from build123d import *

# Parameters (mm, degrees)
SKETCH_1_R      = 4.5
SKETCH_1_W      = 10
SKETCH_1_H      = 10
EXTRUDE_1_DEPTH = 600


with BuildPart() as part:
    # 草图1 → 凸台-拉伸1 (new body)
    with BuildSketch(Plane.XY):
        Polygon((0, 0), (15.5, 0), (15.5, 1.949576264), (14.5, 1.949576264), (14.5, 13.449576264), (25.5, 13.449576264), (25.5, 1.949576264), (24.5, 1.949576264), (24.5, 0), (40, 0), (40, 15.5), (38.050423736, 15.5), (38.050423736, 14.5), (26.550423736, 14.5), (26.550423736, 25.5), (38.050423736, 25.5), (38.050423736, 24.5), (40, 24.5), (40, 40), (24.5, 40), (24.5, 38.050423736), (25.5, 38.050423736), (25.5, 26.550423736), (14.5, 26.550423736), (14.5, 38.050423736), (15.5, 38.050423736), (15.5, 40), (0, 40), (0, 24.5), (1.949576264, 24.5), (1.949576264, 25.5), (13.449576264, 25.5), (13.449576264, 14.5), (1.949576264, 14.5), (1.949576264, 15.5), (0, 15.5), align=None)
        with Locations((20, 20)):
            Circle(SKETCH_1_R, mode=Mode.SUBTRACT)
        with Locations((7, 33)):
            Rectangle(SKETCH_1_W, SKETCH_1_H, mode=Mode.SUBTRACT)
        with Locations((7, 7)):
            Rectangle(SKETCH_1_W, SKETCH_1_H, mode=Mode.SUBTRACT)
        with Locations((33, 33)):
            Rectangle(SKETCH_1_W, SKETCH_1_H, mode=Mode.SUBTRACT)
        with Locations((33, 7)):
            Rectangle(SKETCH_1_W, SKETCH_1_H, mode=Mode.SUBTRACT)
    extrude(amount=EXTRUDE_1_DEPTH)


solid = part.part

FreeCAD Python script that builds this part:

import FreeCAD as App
import Part
import Sketcher

V = App.Vector
Q = App.Units.Quantity

doc = App.newDocument("Part")
body = doc.addObject("PartDesign::Body", "Body")

# Sketch on XY plane
sketch1 = body.newObject("Sketcher::SketchObject", "Sketch")
sketch1.AttachmentSupport = (doc.getObject("XY_Plane"), [""])
sketch1.MapMode = "FlatFace"
sketch1.addGeometry([
    Part.LineSegment(V(0, 0, 0), V(15.5, 0, 0)),  # 0
    Part.LineSegment(V(15.5, 0, 0), V(15.5, 1.9, 0)),  # 1
    Part.LineSegment(V(15.5, 1.9, 0), V(14.5, 1.9, 0)),  # 2
    Part.LineSegment(V(14.5, 1.9, 0), V(14.5, 13.4, 0)),  # 3
    Part.LineSegment(V(14.5, 13.4, 0), V(25.5, 13.4, 0)),  # 4
    Part.LineSegment(V(25.5, 13.4, 0), V(25.5, 1.9, 0)),  # 5
    Part.LineSegment(V(25.5, 1.9, 0), V(24.5, 1.9, 0)),  # 6
    Part.LineSegment(V(24.5, 1.9, 0), V(24.5, 0, 0)),  # 7
    Part.LineSegment(V(24.5, 0, 0), V(40, 0, 0)),  # 8
    Part.LineSegment(V(40, 0, 0), V(40, 15.5, 0)),  # 9
    Part.LineSegment(V(40, 15.5, 0), V(38.1, 15.5, 0)),  # 10
    Part.LineSegment(V(38.1, 15.5, 0), V(38.1, 14.5, 0)),  # 11
    Part.LineSegment(V(38.1, 14.5, 0), V(26.6, 14.5, 0)),  # 12
    Part.LineSegment(V(26.6, 14.5, 0), V(26.6, 25.5, 0)),  # 13
    Part.LineSegment(V(26.6, 25.5, 0), V(38.1, 25.5, 0)),  # 14
    Part.LineSegment(V(38.1, 25.5, 0), V(38.1, 24.5, 0)),  # 15
    Part.LineSegment(V(38.1, 24.5, 0), V(40, 24.5, 0)),  # 16
    Part.LineSegment(V(40, 24.5, 0), V(40, 40, 0)),  # 17
    Part.LineSegment(V(40, 40, 0), V(24.5, 40, 0)),  # 18
    Part.LineSegment(V(24.5, 40, 0), V(24.5, 38.1, 0)),  # 19
    Part.LineSegment(V(24.5, 38.1, 0), V(25.5, 38.1, 0)),  # 20
    Part.LineSegment(V(25.5, 38.1, 0), V(25.5, 26.6, 0)),  # 21
    Part.LineSegment(V(25.5, 26.6, 0), V(14.5, 26.6, 0)),  # 22
    Part.LineSegment(V(14.5, 26.6, 0), V(14.5, 38.1, 0)),  # 23
    Part.LineSegment(V(14.5, 38.1, 0), V(15.5, 38.1, 0)),  # 24
    Part.LineSegment(V(15.5, 38.1, 0), V(15.5, 40, 0)),  # 25
    Part.LineSegment(V(15.5, 40, 0), V(0, 40, 0)),  # 26
    Part.LineSegment(V(0, 40, 0), V(0, 24.5, 0)),  # 27
    Part.LineSegment(V(0, 24.5, 0), V(1.9, 24.5, 0)),  # 28
    Part.LineSegment(V(1.9, 24.5, 0), V(1.9, 25.5, 0)),  # 29
    Part.LineSegment(V(1.9, 25.5, 0), V(13.4, 25.5, 0)),  # 30
    Part.LineSegment(V(13.4, 25.5, 0), V(13.4, 14.5, 0)),  # 31
    Part.LineSegment(V(13.4, 14.5, 0), V(1.9, 14.5, 0)),  # 32
    Part.LineSegment(V(1.9, 14.5, 0), V(1.9, 15.5, 0)),  # 33
    Part.LineSegment(V(1.9, 15.5, 0), V(0, 15.5, 0)),  # 34
    Part.LineSegment(V(0, 15.5, 0), V(0, 0, 0)),  # 35
    Part.LineSegment(V(12, 2, 0), V(2, 2, 0)),  # 36
    Part.LineSegment(V(2, 2, 0), V(2, 12, 0)),  # 37
    Part.LineSegment(V(2, 12, 0), V(12, 12, 0)),  # 38
    Part.LineSegment(V(12, 12, 0), V(12, 2, 0)),  # 39
    Part.LineSegment(V(38, 2, 0), V(28, 2, 0)),  # 40
    Part.LineSegment(V(28, 2, 0), V(28, 12, 0)),  # 41
    Part.LineSegment(V(28, 12, 0), V(38, 12, 0)),  # 42
    Part.LineSegment(V(38, 12, 0), V(38, 2, 0)),  # 43
    Part.LineSegment(V(12, 28, 0), V(2, 28, 0)),  # 44
    Part.LineSegment(V(2, 28, 0), V(2, 38, 0)),  # 45
    Part.LineSegment(V(2, 38, 0), V(12, 38, 0)),  # 46
    Part.LineSegment(V(12, 38, 0), V(12, 28, 0)),  # 47
    Part.Circle(V(20, 20, 0), V(0, 0, 1), 4.5),  # 48
    Part.LineSegment(V(38, 28, 0), V(28, 28, 0)),  # 49
    Part.LineSegment(V(28, 28, 0), V(28, 38, 0)),  # 50
    Part.LineSegment(V(28, 38, 0), V(38, 38, 0)),  # 51
    Part.LineSegment(V(38, 38, 0), V(38, 28, 0)),  # 52
], False)
sketch1.addConstraint([
    Sketcher.Constraint("Coincident", 0, 2, 1, 1),
    Sketcher.Constraint("Coincident", 1, 2, 2, 1),
    Sketcher.Constraint("Coincident", 2, 2, 3, 1),
    Sketcher.Constraint("Coincident", 3, 2, 4, 1),
    Sketcher.Constraint("Coincident", 4, 2, 5, 1),
    Sketcher.Constraint("Coincident", 5, 2, 6, 1),
    Sketcher.Constraint("Coincident", 6, 2, 7, 1),
    Sketcher.Constraint("Coincident", 7, 2, 8, 1),
    Sketcher.Constraint("Coincident", 8, 2, 9, 1),
    Sketcher.Constraint("Coincident", 9, 2, 10, 1),
    Sketcher.Constraint("Coincident", 10, 2, 11, 1),
    Sketcher.Constraint("Coincident", 11, 2, 12, 1),
    Sketcher.Constraint("Coincident", 12, 2, 13, 1),
    Sketcher.Constraint("Coincident", 13, 2, 14, 1),
    Sketcher.Constraint("Coincident", 14, 2, 15, 1),
    Sketcher.Constraint("Coincident", 15, 2, 16, 1),
    Sketcher.Constraint("Coincident", 16, 2, 17, 1),
    Sketcher.Constraint("Coincident", 17, 2, 18, 1),
    Sketcher.Constraint("Coincident", 18, 2, 19, 1),
    Sketcher.Constraint("Coincident", 19, 2, 20, 1),
    Sketcher.Constraint("Coincident", 20, 2, 21, 1),
    Sketcher.Constraint("Coincident", 21, 2, 22, 1),
    Sketcher.Constraint("Coincident", 22, 2, 23, 1),
    Sketcher.Constraint("Coincident", 23, 2, 24, 1),
    Sketcher.Constraint("Coincident", 24, 2, 25, 1),
    Sketcher.Constraint("Coincident", 25, 2, 26, 1),
    Sketcher.Constraint("Coincident", 26, 2, 27, 1),
    Sketcher.Constraint("Coincident", 27, 2, 28, 1),
    Sketcher.Constraint("Coincident", 28, 2, 29, 1),
    Sketcher.Constraint("Coincident", 29, 2, 30, 1),
    Sketcher.Constraint("Coincident", 30, 2, 31, 1),
    Sketcher.Constraint("Coincident", 31, 2, 32, 1),
    Sketcher.Constraint("Coincident", 32, 2, 33, 1),
    Sketcher.Constraint("Coincident", 33, 2, 34, 1),
    Sketcher.Constraint("Coincident", 34, 2, 35, 1),
    Sketcher.Constraint("Coincident", 35, 2, 0, 1),
    Sketcher.Constraint("Coincident", 36, 2, 37, 1),
    Sketcher.Constraint("Coincident", 37, 2, 38, 1),
    Sketcher.Constraint("Coincident", 38, 2, 39, 1),
    Sketcher.Constraint("Coincident", 39, 2, 36, 1),
    Sketcher.Constraint("Coincident", 40, 2, 41, 1),
    Sketcher.Constraint("Coincident", 41, 2, 42, 1),
    Sketcher.Constraint("Coincident", 42, 2, 43, 1),
    Sketcher.Constraint("Coincident", 43, 2, 40, 1),
    Sketcher.Constraint("Coincident", 44, 2, 45, 1),
    Sketcher.Constraint("Coincident", 45, 2, 46, 1),
    Sketcher.Constraint("Coincident", 46, 2, 47, 1),
    Sketcher.Constraint("Coincident", 47, 2, 44, 1),
    Sketcher.Constraint("Coincident", 49, 2, 50, 1),
    Sketcher.Constraint("Coincident", 50, 2, 51, 1),
    Sketcher.Constraint("Coincident", 51, 2, 52, 1),
    Sketcher.Constraint("Coincident", 52, 2, 49, 1),
    Sketcher.Constraint("Horizontal", 0),
    Sketcher.Constraint("Vertical", 1),
    Sketcher.Constraint("Horizontal", 2),
    Sketcher.Constraint("Vertical", 3),
    Sketcher.Constraint("Horizontal", 4),
    Sketcher.Constraint("Vertical", 5),
    Sketcher.Constraint("Horizontal", 6),
    Sketcher.Constraint("Vertical", 7),
    Sketcher.Constraint("Horizontal", 8),
    Sketcher.Constraint("Vertical", 9),
    Sketcher.Constraint("Horizontal", 10),
    Sketcher.Constraint("Vertical", 11),
    Sketcher.Constraint("Horizontal", 12),
    Sketcher.Constraint("Vertical", 13),
    Sketcher.Constraint("Horizontal", 14),
    Sketcher.Constraint("Vertical", 15),
    Sketcher.Constraint("Horizontal", 16),
    Sketcher.Constraint("Vertical", 17),
    Sketcher.Constraint("Horizontal", 18),
    Sketcher.Constraint("Vertical", 19),
    Sketcher.Constraint("Horizontal", 20),
    Sketcher.Constraint("Vertical", 21),
    Sketcher.Constraint("Horizontal", 22),
    Sketcher.Constraint("Vertical", 23),
    Sketcher.Constraint("Horizontal", 24),
    Sketcher.Constraint("Vertical", 25),
    Sketcher.Constraint("Horizontal", 26),
    Sketcher.Constraint("Vertical", 27),
    Sketcher.Constraint("Horizontal", 28),
    Sketcher.Constraint("Vertical", 29),
    Sketcher.Constraint("Horizontal", 30),
    Sketcher.Constraint("Vertical", 31),
    Sketcher.Constraint("Horizontal", 32),
    Sketcher.Constraint("Vertical", 33),
    Sketcher.Constraint("Horizontal", 34),
    Sketcher.Constraint("Vertical", 35),
    Sketcher.Constraint("Horizontal", 36),
    Sketcher.Constraint("Vertical", 37),
    Sketcher.Constraint("Horizontal", 38),
    Sketcher.Constraint("Vertical", 39),
    Sketcher.Constraint("Horizontal", 40),
    Sketcher.Constraint("Vertical", 41),
    Sketcher.Constraint("Horizontal", 42),
    Sketcher.Constraint("Vertical", 43),
    Sketcher.Constraint("Horizontal", 44),
    Sketcher.Constraint("Vertical", 45),
    Sketcher.Constraint("Horizontal", 46),
    Sketcher.Constraint("Vertical", 47),
    Sketcher.Constraint("Horizontal", 49),
    Sketcher.Constraint("Vertical", 50),
    Sketcher.Constraint("Horizontal", 51),
    Sketcher.Constraint("Vertical", 52),
    Sketcher.Constraint("Coincident", 35, 2, -1, 1),
    Sketcher.Constraint("PointOnObject", 7, 2, -1),
    Sketcher.Constraint("PointOnObject", 26, 2, -2),
    Sketcher.Constraint("Horizontal", 2, 2, 5, 2),
    Sketcher.Constraint("Horizontal", 20, 2, 23, 2),
    Sketcher.Constraint("Horizontal", 18, 2, 25, 2),
    Sketcher.Constraint("Horizontal", 16, 2, 27, 2),
    Sketcher.Constraint("Horizontal", 14, 2, 29, 2),
    Sketcher.Constraint("Horizontal", 12, 2, 31, 2),
    Sketcher.Constraint("Horizontal", 10, 2, 33, 2),
    Sketcher.Constraint("Horizontal", 39, 2, 40, 2),
    Sketcher.Constraint("Horizontal", 38, 2, 41, 2),
    Sketcher.Constraint("Horizontal", 47, 2, 49, 2),
    Sketcher.Constraint("Horizontal", 46, 2, 50, 2),
    Sketcher.Constraint("Vertical", 11, 2, 14, 2),
    Sketcher.Constraint("Vertical", 9, 2, 16, 2),
    Sketcher.Constraint("Vertical", 7, 2, 18, 2),
    Sketcher.Constraint("Vertical", 5, 2, 20, 2),
    Sketcher.Constraint("Vertical", 3, 2, 22, 2),
    Sketcher.Constraint("Vertical", 1, 2, 24, 2),
    Sketcher.Constraint("Vertical", 29, 2, 32, 2),
    Sketcher.Constraint("Vertical", 37, 2, 44, 2),
    Sketcher.Constraint("Vertical", 39, 2, 46, 2),
    Sketcher.Constraint("Vertical", 41, 2, 49, 2),
    Sketcher.Constraint("Vertical", 43, 2, 51, 2),
    Sketcher.Constraint("Equal", 2, 6),
    Sketcher.Constraint("Equal", 0, 8),
    Sketcher.Constraint("Equal", 16, 28),
    Sketcher.Constraint("Equal", 14, 30),
    Sketcher.Constraint("Equal", 38, 40),
    Sketcher.Constraint("Equal", 34, 1),
    Sketcher.Constraint("Equal", 32, 3),
    Sketcher.Constraint("Equal", 26, 9),
    Sketcher.Constraint("Equal", 24, 11),
    Sketcher.Constraint("Equal", 22, 13),
    Sketcher.Constraint("Equal", 11, 15),
    Sketcher.Constraint("Equal", 9, 17),
    Sketcher.Constraint("Equal", 7, 19),
    Sketcher.Constraint("Equal", 5, 21),
    Sketcher.Constraint("Equal", 51, 37),
    Sketcher.Constraint("Equal", 43, 45),
    Sketcher.Constraint("Diameter", 48, Q("9 mm")),
    Sketcher.Constraint("DistanceX", 2, 2, 2, 1, Q("1 mm")),
    Sketcher.Constraint("DistanceX", 4, 1, 4, 2, Q("11 mm")),
    Sketcher.Constraint("DistanceX", 36, 2, 36, 1, Q("10 mm")),
    Sketcher.Constraint("DistanceX", 0, 1, 0, 2, Q("15.5 mm")),
    Sketcher.Constraint("DistanceX", 12, 2, 12, 1, Q("11.5 mm")),
    Sketcher.Constraint("DistanceX", -1, 1, 48, 3, Q("20 mm")),
    Sketcher.Constraint("DistanceY", -1, 1, 48, 3, Q("20 mm")),
    Sketcher.Constraint("DistanceX", -1, 1, 36, 2, Q("2 mm")),
    Sketcher.Constraint("DistanceY", -1, 1, 36, 2, Q("2 mm")),
    Sketcher.Constraint("DistanceX", -1, 1, 40, 2, Q("28 mm")),
    Sketcher.Constraint("DistanceY", -1, 1, 44, 2, Q("28 mm")),
    Sketcher.Constraint("DistanceX", 10, 2, 10, 1, Q("1.949576 mm")),
])
pad1 = body.newObject("PartDesign::Pad", "Pad")
pad1.Profile = sketch1
pad1.Length = 600

doc.recompute()
